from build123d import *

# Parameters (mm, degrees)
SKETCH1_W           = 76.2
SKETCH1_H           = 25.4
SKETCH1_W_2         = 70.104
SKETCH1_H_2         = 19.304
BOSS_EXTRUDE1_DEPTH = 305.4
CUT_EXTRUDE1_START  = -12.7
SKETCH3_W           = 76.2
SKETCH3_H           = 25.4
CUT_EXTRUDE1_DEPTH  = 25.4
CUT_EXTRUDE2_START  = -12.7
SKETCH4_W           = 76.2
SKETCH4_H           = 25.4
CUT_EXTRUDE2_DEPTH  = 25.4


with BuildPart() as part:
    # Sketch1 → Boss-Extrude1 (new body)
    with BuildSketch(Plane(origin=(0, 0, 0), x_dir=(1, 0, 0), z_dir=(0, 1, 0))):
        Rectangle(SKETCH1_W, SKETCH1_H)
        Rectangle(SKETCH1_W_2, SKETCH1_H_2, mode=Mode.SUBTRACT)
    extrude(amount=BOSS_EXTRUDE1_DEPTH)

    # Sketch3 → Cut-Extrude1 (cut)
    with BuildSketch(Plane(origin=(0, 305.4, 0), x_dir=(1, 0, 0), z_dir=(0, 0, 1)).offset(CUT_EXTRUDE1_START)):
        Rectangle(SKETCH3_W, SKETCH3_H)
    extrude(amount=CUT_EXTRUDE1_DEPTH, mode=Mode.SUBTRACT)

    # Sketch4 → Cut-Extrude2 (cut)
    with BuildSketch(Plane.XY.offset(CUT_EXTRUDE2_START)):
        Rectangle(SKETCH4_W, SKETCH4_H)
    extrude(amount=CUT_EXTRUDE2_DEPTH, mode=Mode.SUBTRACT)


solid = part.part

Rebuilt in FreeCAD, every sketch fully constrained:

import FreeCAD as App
import Part
import Sketcher
from FreeCAD import Vector
Q = App.Units.Quantity

doc = App.newDocument("Part")
params = doc.addObject("Spreadsheet::Sheet", "Params")
for row, (alias, value) in enumerate([
    ("sketch1_width", "3 in"),
    ("sketch1_height", "1 in"),
    ("sketch1_width2", "2.76 in"),
    ("sketch1_height2", "0.76 in"),
    ("pad1_length", "305.4 mm"),
    ("sketch2_width", "3 in"),
    ("sketch2_height", "1 in"),
    ("pocket1_length", "1 in"),
    ("sketch3_width", "3 in"),
    ("sketch3_height", "1 in"),
    ("pocket2_length", "1 in"),
], start=1):
    params.set(f"A{row}", alias)
    params.set(f"B{row}", "=" + value)
    params.setAlias(f"B{row}", alias)

body = doc.addObject("PartDesign::Body", "Body")

# Sketch on XZ plane
sketch1 = body.newObject("Sketcher::SketchObject", "Sketch")
sketch1.AttachmentSupport = (doc.getObject("XZ_Plane"), [""])
sketch1.MapMode = "FlatFace"
sketch1.addGeometry([
    Part.LineSegment(Vector(-38, -13, 0), Vector(-38, 13, 0)),  # 0
    Part.LineSegment(Vector(-38, 13, 0), Vector(38, 13, 0)),  # 1
    Part.LineSegment(Vector(38, 13, 0), Vector(38, -13, 0)),  # 2
    Part.LineSegment(Vector(38, -13, 0), Vector(-38, -13, 0)),  # 3
    Part.LineSegment(Vector(35, 10, 0), Vector(-35, 10, 0)),  # 4
    Part.LineSegment(Vector(-35, 10, 0), Vector(-35, -10, 0)),  # 5
    Part.LineSegment(Vector(-35, -10, 0), Vector(35, -10, 0)),  # 6
    Part.LineSegment(Vector(35, -10, 0), Vector(35, 10, 0)),  # 7
], False)
sketch1.addConstraint([
    Sketcher.Constraint("Coincident", 0, 2, 1, 1),
    Sketcher.Constraint("Coincident", 1, 2, 2, 1),
    Sketcher.Constraint("Coincident", 2, 2, 3, 1),
    Sketcher.Constraint("Coincident", 3, 2, 0, 1),
    Sketcher.Constraint("Coincident", 4, 2, 5, 1),
    Sketcher.Constraint("Coincident", 5, 2, 6, 1),
    Sketcher.Constraint("Coincident", 6, 2, 7, 1),
    Sketcher.Constraint("Coincident", 7, 2, 4, 1),
    Sketcher.Constraint("Vertical", 0),
    Sketcher.Constraint("Horizontal", 1),
    Sketcher.Constraint("Vertical", 2),
    Sketcher.Constraint("Horizontal", 3),
    Sketcher.Constraint("Horizontal", 4),
    Sketcher.Constraint("Vertical", 5),
    Sketcher.Constraint("Horizontal", 6),
    Sketcher.Constraint("Vertical", 7),
    Sketcher.Constraint("Symmetric", 0, 2, 2, 2, -1, 1),
    Sketcher.Constraint("Symmetric", 4, 2, 6, 2, -1, 1),
    Sketcher.Constraint("DistanceX", 1, 1, 1, 2, Q("3 in")),
    Sketcher.Constraint("DistanceY", 0, 1, 0, 2, Q("1 in")),
    Sketcher.Constraint("DistanceX", 4, 2, 4, 1, Q("2.76 in")),
    Sketcher.Constraint("DistanceY", 5, 2, 5, 1, Q("0.76 in")),
])
sketch1.setExpression("Constraints[18]", "Params.sketch1_width")
sketch1.setExpression("Constraints[19]", "Params.sketch1_height")
sketch1.setExpression("Constraints[20]", "Params.sketch1_width2")
sketch1.setExpression("Constraints[21]", "Params.sketch1_height2")
pad1 = body.newObject("PartDesign::Pad", "Pad")
pad1.Profile = sketch1
pad1.setExpression("Length", "Params.pad1_length")
pad1.Reversed = True

# Sketch on XY plane
sketch2 = body.newObject("Sketcher::SketchObject", "Sketch001")
sketch2.AttachmentSupport = (doc.getObject("XY_Plane"), [""])
sketch2.MapMode = "FlatFace"
sketch2.AttachmentOffset = App.Placement(Vector(0, 0, -0.5 * 25.4), App.Rotation())
sketch2.addGeometry([
    Part.LineSegment(Vector(-38, 318, 0), Vector(-38, 293, 0)),
    Part.LineSegment(Vector(-38, 293, 0), Vector(38, 293, 0)),
    Part.LineSegment(Vector(38, 293, 0), Vector(38, 318, 0)),
    Part.LineSegment(Vector(38, 318, 0), Vector(-38, 318, 0)),
], False)
sketch2.addConstraint([
    Sketcher.Constraint("Coincident", 0, 2, 1, 1),
    Sketcher.Constraint("Coincident", 1, 2, 2, 1),
    Sketcher.Constraint("Coincident", 2, 2, 3, 1),
    Sketcher.Constraint("Coincident", 3, 2, 0, 1),
    Sketcher.Constraint("Vertical", 0),
    Sketcher.Constraint("Horizontal", 1),
    Sketcher.Constraint("Vertical", 2),
    Sketcher.Constraint("Horizontal", 3),
    Sketcher.Constraint("DistanceX", 1, 1, 1, 2, Q("3 in")),
    Sketcher.Constraint("DistanceY", 0, 2, 0, 1, Q("1 in")),
    Sketcher.Constraint("DistanceX", 0, 2, -1, 1, Q("1.5 in")),
    Sketcher.Constraint("DistanceY", -1, 1, 0, 2, Q("292.7 mm")),
])
sketch2.setExpression("Constraints[8]", "Params.sketch2_width")
sketch2.setExpression("Constraints[9]", "Params.sketch2_height")
pocket1 = body.newObject("PartDesign::Pocket", "Pocket")
pocket1.Profile = sketch2
pocket1.setExpression("Length", "Params.pocket1_length")
pocket1.Reversed = True

# Sketch on XY plane
sketch3 = body.newObject("Sketcher::SketchObject", "Sketch002")
sketch3.AttachmentSupport = (doc.getObject("XY_Plane"), [""])
sketch3.MapMode = "FlatFace"
sketch3.AttachmentOffset = App.Placement(Vector(0, 0, -0.5 * 25.4), App.Rotation())
sketch3.addGeometry([
    Part.LineSegment(Vector(-38, 13, 0), Vector(-38, -13, 0)),
    Part.LineSegment(Vector(-38, -13, 0), Vector(38, -13, 0)),
    Part.LineSegment(Vector(38, -13, 0), Vector(38, 13, 0)),
    Part.LineSegment(Vector(38, 13, 0), Vector(-38, 13, 0)),
], False)
sketch3.addConstraint([
    Sketcher.Constraint("Coincident", 0, 2, 1, 1),
    Sketcher.Constraint("Coincident", 1, 2, 2, 1),
    Sketcher.Constraint("Coincident", 2, 2, 3, 1),
    Sketcher.Constraint("Coincident", 3, 2, 0, 1),
    Sketcher.Constraint("Vertical", 0),
    Sketcher.Constraint("Horizontal", 1),
    Sketcher.Constraint("Vertical", 2),
    Sketcher.Constraint("Horizontal", 3),
    Sketcher.Constraint("Symmetric", 0, 2, 2, 2, -1, 1),
    Sketcher.Constraint("DistanceX", 1, 1, 1, 2, Q("3 in")),
    Sketcher.Constraint("DistanceY", 0, 2, 0, 1, Q("1 in")),
])
sketch3.setExpression("Constraints[9]", "Params.sketch3_width")
sketch3.setExpression("Constraints[10]", "Params.sketch3_height")
pocket2 = body.newObject("PartDesign::Pocket", "Pocket001")
pocket2.Profile = sketch3
pocket2.setExpression("Length", "Params.pocket2_length")
pocket2.Reversed = True

doc.recompute()
